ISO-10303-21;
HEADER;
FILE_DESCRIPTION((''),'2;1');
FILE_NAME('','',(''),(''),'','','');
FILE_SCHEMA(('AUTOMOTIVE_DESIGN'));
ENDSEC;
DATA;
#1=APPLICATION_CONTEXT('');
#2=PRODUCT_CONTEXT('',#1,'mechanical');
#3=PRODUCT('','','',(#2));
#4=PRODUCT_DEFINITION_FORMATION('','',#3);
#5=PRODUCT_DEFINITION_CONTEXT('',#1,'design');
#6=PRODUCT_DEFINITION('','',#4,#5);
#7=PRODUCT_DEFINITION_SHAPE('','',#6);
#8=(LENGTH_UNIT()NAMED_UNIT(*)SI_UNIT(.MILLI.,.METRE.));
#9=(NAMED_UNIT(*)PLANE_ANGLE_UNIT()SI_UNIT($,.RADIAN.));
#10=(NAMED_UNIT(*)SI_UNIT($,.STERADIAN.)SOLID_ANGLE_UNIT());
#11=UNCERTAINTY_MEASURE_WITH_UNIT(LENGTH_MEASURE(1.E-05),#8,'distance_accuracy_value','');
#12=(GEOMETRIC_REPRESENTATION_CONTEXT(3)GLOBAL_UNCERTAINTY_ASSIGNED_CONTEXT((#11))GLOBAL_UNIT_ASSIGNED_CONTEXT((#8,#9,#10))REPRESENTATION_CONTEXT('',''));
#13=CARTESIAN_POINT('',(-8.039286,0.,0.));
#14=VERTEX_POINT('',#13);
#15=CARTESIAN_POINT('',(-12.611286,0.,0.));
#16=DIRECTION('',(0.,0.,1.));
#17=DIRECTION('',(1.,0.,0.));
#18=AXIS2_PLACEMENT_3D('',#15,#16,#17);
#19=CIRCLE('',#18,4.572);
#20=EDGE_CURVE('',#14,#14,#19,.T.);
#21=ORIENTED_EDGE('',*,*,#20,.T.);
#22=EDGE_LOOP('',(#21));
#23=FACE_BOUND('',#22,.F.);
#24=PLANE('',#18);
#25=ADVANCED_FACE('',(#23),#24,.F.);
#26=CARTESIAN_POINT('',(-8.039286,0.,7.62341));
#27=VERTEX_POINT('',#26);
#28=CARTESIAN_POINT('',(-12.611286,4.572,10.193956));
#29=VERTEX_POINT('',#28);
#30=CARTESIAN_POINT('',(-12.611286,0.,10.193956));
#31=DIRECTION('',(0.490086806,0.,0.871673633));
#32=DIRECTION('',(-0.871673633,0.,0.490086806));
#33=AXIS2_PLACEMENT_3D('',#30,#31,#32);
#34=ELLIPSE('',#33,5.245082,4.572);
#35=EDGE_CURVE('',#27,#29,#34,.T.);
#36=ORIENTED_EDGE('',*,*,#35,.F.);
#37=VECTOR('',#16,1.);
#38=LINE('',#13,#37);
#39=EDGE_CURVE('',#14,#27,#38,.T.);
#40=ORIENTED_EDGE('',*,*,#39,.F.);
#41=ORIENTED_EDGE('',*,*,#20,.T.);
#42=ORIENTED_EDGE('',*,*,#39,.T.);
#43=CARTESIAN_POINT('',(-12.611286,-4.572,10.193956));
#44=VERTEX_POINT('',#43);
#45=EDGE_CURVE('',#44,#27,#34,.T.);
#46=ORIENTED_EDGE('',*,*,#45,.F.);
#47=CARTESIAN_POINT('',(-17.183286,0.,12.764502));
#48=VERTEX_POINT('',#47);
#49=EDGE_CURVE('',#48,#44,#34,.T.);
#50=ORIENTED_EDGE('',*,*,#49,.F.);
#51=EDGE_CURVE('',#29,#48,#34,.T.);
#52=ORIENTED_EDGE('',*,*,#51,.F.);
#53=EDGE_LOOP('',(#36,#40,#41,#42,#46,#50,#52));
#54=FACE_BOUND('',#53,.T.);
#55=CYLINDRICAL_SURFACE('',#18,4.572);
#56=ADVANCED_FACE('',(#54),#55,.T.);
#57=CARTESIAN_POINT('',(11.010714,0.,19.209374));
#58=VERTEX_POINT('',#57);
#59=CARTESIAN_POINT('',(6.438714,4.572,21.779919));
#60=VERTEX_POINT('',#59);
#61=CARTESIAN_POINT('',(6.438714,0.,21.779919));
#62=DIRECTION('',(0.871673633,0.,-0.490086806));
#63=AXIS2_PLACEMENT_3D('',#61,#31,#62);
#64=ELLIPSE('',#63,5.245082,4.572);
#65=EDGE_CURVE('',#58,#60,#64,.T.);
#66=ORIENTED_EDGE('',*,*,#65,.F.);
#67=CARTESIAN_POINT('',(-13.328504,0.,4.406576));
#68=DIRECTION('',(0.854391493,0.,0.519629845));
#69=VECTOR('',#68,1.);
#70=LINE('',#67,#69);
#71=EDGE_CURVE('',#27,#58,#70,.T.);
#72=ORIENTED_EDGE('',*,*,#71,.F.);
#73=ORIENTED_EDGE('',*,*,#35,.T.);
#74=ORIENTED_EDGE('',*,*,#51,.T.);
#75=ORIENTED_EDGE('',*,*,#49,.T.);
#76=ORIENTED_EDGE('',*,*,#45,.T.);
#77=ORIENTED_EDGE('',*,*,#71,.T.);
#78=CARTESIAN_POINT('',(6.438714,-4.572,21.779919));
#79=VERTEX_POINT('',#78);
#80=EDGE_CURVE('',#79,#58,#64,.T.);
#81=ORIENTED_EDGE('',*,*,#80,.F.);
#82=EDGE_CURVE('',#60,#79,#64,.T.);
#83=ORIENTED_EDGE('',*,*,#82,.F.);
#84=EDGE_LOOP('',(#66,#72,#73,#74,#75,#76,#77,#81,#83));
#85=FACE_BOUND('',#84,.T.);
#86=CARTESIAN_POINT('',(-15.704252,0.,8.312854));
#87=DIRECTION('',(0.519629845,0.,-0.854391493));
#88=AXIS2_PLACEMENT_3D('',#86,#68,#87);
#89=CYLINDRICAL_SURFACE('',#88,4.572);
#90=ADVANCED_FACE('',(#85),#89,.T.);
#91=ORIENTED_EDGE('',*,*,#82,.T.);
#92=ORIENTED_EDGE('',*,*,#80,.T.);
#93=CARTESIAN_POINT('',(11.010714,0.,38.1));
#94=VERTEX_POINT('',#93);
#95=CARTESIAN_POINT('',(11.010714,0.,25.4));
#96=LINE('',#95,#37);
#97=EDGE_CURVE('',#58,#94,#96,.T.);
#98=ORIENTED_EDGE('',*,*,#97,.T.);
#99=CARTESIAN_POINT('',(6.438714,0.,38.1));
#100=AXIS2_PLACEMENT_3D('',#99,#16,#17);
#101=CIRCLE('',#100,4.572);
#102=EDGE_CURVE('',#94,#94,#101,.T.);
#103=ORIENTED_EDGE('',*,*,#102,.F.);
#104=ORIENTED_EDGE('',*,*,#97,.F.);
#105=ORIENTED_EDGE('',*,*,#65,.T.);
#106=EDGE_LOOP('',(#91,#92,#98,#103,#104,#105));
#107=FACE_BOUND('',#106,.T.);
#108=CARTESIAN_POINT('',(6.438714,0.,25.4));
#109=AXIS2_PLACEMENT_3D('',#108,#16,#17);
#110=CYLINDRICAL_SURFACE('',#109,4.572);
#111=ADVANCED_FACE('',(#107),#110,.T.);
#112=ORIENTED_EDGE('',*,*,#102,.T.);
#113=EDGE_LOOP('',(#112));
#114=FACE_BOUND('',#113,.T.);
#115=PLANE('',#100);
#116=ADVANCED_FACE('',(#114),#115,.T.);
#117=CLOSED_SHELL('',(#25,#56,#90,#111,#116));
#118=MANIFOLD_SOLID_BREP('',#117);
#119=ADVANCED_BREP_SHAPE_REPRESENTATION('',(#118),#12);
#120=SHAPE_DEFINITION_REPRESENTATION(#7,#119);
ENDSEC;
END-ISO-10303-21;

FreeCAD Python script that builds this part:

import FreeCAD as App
import Part
import Sketcher
from FreeCAD import Vector
Q = App.Units.Quantity

doc = App.newDocument("Part")
body = doc.addObject("PartDesign::Body", "Body")

# Sketch on XY plane
sketch1 = body.newObject("Sketcher::SketchObject", "Sketch")
sketch1.AttachmentSupport = (doc.getObject("XY_Plane"), [""])
sketch1.MapMode = "FlatFace"
sketch1.addGeometry(Part.Circle(Vector(-12.611286, 0, 0), Vector(0, 0, 1), 4.572), False)
sketch1.addConstraint([
    Sketcher.Constraint("PointOnObject", 0, 3, -1),
    Sketcher.Constraint("Diameter", 0, Q("0.36 in")),
    Sketcher.Constraint("DistanceX", 0, 3, -1, 1, Q("12.611286 mm")),
])

# Sketch on XZ plane
sketch2 = body.newObject("Sketcher::SketchObject", "Sketch001")
sketch2.AttachmentSupport = (doc.getObject("XZ_Plane"), [""])
sketch2.MapMode = "FlatFace"
sketch2.addGeometry([
    Part.LineSegment(Vector(-19.05, 0, 0), Vector(-19.05, 13.814037, 0)),
    Part.LineSegment(Vector(-19.05, 13.814037, 0), Vector(0, 25.4, 0)),
    Part.LineSegment(Vector(0, 25.4, 0), Vector(0, 38.1, 0)),
], False)
sketch2.addConstraint([
    Sketcher.Constraint("Coincident", 0, 2, 1, 1),
    Sketcher.Constraint("Coincident", 1, 2, 2, 1),
    Sketcher.Constraint("Vertical", 0),
    Sketcher.Constraint("Vertical", 2),
    Sketcher.Constraint("PointOnObject", 0, 1, -1),
    Sketcher.Constraint("PointOnObject", 1, 2, -2),
    Sketcher.Constraint("DistanceY", 2, 1, 2, 2, Q("0.5 in")),
    Sketcher.Constraint("DistanceY", -1, 1, 1, 2, Q("1 in")),
    Sketcher.Constraint("DistanceX", 0, 1, -1, 1, Q("0.75 in")),
    Sketcher.Constraint("Distance", 1, Q("22.29657 mm")),
])
doc.recompute()

additivepipe = body.newObject("PartDesign::AdditivePipe", "AdditivePipe")
additivepipe.Profile = sketch1
additivepipe.Spine = (sketch2, ["Edge1", "Edge2", "Edge3"])
additivepipe.Transition = "Right corner"

doc.recompute()
